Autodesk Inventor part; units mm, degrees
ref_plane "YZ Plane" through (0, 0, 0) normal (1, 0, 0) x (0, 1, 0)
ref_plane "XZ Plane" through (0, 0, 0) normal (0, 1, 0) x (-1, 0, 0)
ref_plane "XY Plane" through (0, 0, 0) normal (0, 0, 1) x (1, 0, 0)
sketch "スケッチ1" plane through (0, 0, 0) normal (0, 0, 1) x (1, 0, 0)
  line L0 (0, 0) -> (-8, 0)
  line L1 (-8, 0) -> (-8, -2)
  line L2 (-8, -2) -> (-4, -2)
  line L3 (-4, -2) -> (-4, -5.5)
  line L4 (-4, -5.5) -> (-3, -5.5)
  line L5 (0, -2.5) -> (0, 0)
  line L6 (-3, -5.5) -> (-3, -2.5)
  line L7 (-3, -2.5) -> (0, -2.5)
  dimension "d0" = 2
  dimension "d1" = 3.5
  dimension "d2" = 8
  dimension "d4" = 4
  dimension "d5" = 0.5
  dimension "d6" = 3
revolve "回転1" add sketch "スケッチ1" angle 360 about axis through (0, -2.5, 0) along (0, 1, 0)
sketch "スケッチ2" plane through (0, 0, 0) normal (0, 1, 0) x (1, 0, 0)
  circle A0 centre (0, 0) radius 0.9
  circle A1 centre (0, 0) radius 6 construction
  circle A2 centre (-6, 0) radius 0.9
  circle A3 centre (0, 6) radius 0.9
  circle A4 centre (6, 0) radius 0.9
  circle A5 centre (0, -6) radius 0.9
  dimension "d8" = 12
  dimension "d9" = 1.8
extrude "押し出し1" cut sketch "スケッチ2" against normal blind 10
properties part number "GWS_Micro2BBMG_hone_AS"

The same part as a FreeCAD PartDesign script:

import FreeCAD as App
import Part
import Sketcher
from FreeCAD import Vector
Q = App.Units.Quantity

doc = App.newDocument("Part")
params = doc.addObject("Spreadsheet::Sheet", "Params")
for row, (alias, value) in enumerate([
    ("sketch1_width", "8 mm"),
    ("sketch1_width2", "4 mm"),
    ("sketch1_width3", "3 mm"),
    ("sketch1_height", "2 mm"),
    ("sketch1_height2", "3.5 mm"),
    ("revolution_angle", "360 deg"),
    ("sketch2_diameter", "1.8 mm"),
    ("pocket1_length", "10 mm"),
], start=1):
    params.set(f"A{row}", alias)
    params.set(f"B{row}", "=" + value)
    params.setAlias(f"B{row}", alias)

body = doc.addObject("PartDesign::Body", "Body")

# Sketch on XY plane
sketch1 = body.newObject("Sketcher::SketchObject", "Sketch")
sketch1.AttachmentSupport = (doc.getObject("XY_Plane"), [""])
sketch1.MapMode = "FlatFace"
sketch1.addGeometry([
    Part.LineSegment(Vector(0, -2.5, 0), Vector(0, 0, 0)),  # 0
    Part.LineSegment(Vector(0, 0, 0), Vector(-8, 0, 0)),  # 1
    Part.LineSegment(Vector(-8, 0, 0), Vector(-8, -2, 0)),  # 2
    Part.LineSegment(Vector(-8, -2, 0), Vector(-4, -2, 0)),  # 3
    Part.LineSegment(Vector(-4, -2, 0), Vector(-4, -5.5, 0)),  # 4
    Part.LineSegment(Vector(-4, -5.5, 0), Vector(-3, -5.5, 0)),  # 5
    Part.LineSegment(Vector(-3, -5.5, 0), Vector(-3, -2.5, 0)),  # 6
    Part.LineSegment(Vector(-3, -2.5, 0), Vector(0, -2.5, 0)),  # 7
], False)
sketch1.addConstraint([
    Sketcher.Constraint("Coincident", 0, 2, 1, 1),
    Sketcher.Constraint("Coincident", 1, 2, 2, 1),
    Sketcher.Constraint("Coincident", 2, 2, 3, 1),
    Sketcher.Constraint("Coincident", 3, 2, 4, 1),
    Sketcher.Constraint("Coincident", 4, 2, 5, 1),
    Sketcher.Constraint("Coincident", 5, 2, 6, 1),
    Sketcher.Constraint("Coincident", 6, 2, 7, 1),
    Sketcher.Constraint("Coincident", 7, 2, 0, 1),
    Sketcher.Constraint("Vertical", 0),
    Sketcher.Constraint("Horizontal", 1),
    Sketcher.Constraint("Vertical", 2),
    Sketcher.Constraint("Horizontal", 3),
    Sketcher.Constraint("Vertical", 4),
    Sketcher.Constraint("Horizontal", 5),
    Sketcher.Constraint("Vertical", 6),
    Sketcher.Constraint("Horizontal", 7),
    Sketcher.Constraint("Coincident", 0, 2, -1, 1),
    Sketcher.Constraint("Equal", 7, 6),
    Sketcher.Constraint("DistanceX", 1, 2, 1, 1, Q("8 mm")),
    Sketcher.Constraint("DistanceX", 3, 1, 3, 2, Q("4 mm")),
    Sketcher.Constraint("DistanceX", 7, 1, 7, 2, Q("3 mm")),
    Sketcher.Constraint("DistanceY", 2, 2, 2, 1, Q("2 mm")),
    Sketcher.Constraint("DistanceY", 4, 2, 4, 1, Q("3.5 mm")),
])
sketch1.setExpression("Constraints[18]", "Params.sketch1_width")
sketch1.setExpression("Constraints[19]", "Params.sketch1_width2")
sketch1.setExpression("Constraints[20]", "Params.sketch1_width3")
sketch1.setExpression("Constraints[21]", "Params.sketch1_height")
sketch1.setExpression("Constraints[22]", "Params.sketch1_height2")
revolution = body.newObject("PartDesign::Revolution", "Revolution")
revolution.Profile = sketch1
revolution.ReferenceAxis = (sketch1, ["V_Axis"])
revolution.setExpression("Angle", "Params.revolution_angle")

# Sketch on XZ plane
sketch2 = body.newObject("Sketcher::SketchObject", "Sketch001")
sketch2.AttachmentSupport = (doc.getObject("XZ_Plane"), [""])
sketch2.MapMode = "FlatFace"
sketch2.addGeometry([
    Part.Circle(Vector(0, 0, 0), Vector(0, 0, 1), 0.9),  # 0
    Part.Circle(Vector(-6, 0, 0), Vector(0, 0, 1), 0.9),  # 1
    Part.Circle(Vector(0, -6, 0), Vector(0, 0, 1), 0.9),  # 2
    Part.Circle(Vector(6, 0, 0), Vector(0, 0, 1), 0.9),  # 3
    Part.Circle(Vector(0, 6, 0), Vector(0, 0, 1), 0.9),  # 4
], False)
sketch2.addConstraint([
    Sketcher.Constraint("Coincident", 0, 3, -1, 1),
    Sketcher.Constraint("Equal", 0, 1),
    Sketcher.Constraint("Equal", 1, 2),
    Sketcher.Constraint("Equal", 2, 3),
    Sketcher.Constraint("Equal", 3, 4),
    Sketcher.Constraint("Symmetric", 1, 3, 3, 3, -1, 1),
    Sketcher.Constraint("Symmetric", 2, 3, 4, 3, -1, 1),
    Sketcher.Constraint("PointOnObject", 1, 3, -1),
    Sketcher.Constraint("PointOnObject", 2, 3, -2),
    Sketcher.Constraint("Diameter", 0, Q("1.8 mm")),
    Sketcher.Constraint("DistanceX", 1, 3, 3, 3, Q("12 mm")),
    Sketcher.Constraint("DistanceY", 2, 3, 4, 3, Q("12 mm")),
])
sketch2.setExpression("Constraints[9]", "Params.sketch2_diameter")
pocket1 = body.newObject("PartDesign::Pocket", "Pocket")
pocket1.Profile = sketch2
pocket1.setExpression("Length", "Params.pocket1_length")
pocket1.Reversed = True

doc.recompute()
